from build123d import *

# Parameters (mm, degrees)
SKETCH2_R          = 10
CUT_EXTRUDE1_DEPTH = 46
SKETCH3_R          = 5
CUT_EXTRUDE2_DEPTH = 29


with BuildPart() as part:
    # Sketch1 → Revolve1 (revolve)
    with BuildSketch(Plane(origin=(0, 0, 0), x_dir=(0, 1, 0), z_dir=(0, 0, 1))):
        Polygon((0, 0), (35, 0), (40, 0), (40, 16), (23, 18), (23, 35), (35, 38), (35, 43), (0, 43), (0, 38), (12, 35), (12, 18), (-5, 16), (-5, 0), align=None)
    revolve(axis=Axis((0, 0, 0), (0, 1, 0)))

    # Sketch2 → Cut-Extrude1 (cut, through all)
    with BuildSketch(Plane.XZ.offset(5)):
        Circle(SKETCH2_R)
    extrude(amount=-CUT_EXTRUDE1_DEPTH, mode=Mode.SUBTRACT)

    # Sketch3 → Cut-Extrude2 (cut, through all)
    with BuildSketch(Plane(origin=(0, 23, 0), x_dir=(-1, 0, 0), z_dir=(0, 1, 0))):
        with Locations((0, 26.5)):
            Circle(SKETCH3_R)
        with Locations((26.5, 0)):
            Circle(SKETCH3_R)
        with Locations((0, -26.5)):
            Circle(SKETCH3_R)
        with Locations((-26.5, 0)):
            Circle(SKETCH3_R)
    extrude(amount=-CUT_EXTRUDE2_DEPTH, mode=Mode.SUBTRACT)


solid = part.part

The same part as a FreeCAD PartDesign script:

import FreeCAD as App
import Part
import Sketcher

V = App.Vector


def add_polygon(sketch, points):
    """Adds a closed chain of lines whose ends are joined by coincident constraints."""
    first, n = sketch.GeometryCount, len(points)
    for a, b in zip(points, points[1:] + points[:1]):
        sketch.addGeometry(Part.LineSegment(App.Vector(*a, 0), App.Vector(*b, 0)), False)
    for i in range(n):
        sketch.addConstraint(Sketcher.Constraint("Coincident", first + i, 2, first + (i + 1) % n, 1))

doc = App.newDocument("Part")
body = doc.addObject("PartDesign::Body", "Body")

# Sketch on XY plane
sketch1 = body.newObject("Sketcher::SketchObject", "Sketch")
sketch1.AttachmentSupport = (doc.getObject("XY_Plane"), [""])
sketch1.MapMode = "FlatFace"
add_polygon(sketch1, [(0, 40), (-16, 40), (-18, 23), (-35, 23), (-38, 35), (-43, 35), (-43, 0), (-38, 0), (-35, 12), (-18, 12), (-16, -5), (0, -5)])  # lines 0-11
sketch1.addConstraint(Sketcher.Constraint("Horizontal", 0))
sketch1.addConstraint(Sketcher.Constraint("Horizontal", 2))
sketch1.addConstraint(Sketcher.Constraint("Horizontal", 4))
sketch1.addConstraint(Sketcher.Constraint("Vertical", 5))
sketch1.addConstraint(Sketcher.Constraint("Horizontal", 6))
sketch1.addConstraint(Sketcher.Constraint("Horizontal", 8))
sketch1.addConstraint(Sketcher.Constraint("Horizontal", 10))
sketch1.addConstraint(Sketcher.Constraint("Vertical", 11))
sketch1.addConstraint(Sketcher.Constraint("PointOnObject", 5, 2, -1))
sketch1.addConstraint(Sketcher.Constraint("PointOnObject", 10, 2, -2))
sketch1.addConstraint(Sketcher.Constraint("Vertical", 3, 2, 6, 2))
sketch1.addConstraint(Sketcher.Constraint("Vertical", 2, 2, 7, 2))
sketch1.addConstraint(Sketcher.Constraint("Vertical", 1, 2, 8, 2))
sketch1.addConstraint(Sketcher.Constraint("Vertical", 0, 2, 9, 2))
sketch1.addConstraint(Sketcher.Constraint("Equal", 3, 7))
sketch1.addConstraint(Sketcher.Constraint("Equal", 1, 9))
sketch1.addConstraint(Sketcher.Constraint("DistanceX", 0, 2, 0, 1, 16.0))
sketch1.addConstraint(Sketcher.Constraint("DistanceX", 2, 2, 2, 1, 17.0))
sketch1.addConstraint(Sketcher.Constraint("DistanceX", 4, 2, 4, 1, 5.0))
sketch1.addConstraint(Sketcher.Constraint("DistanceY", 5, 2, 5, 1, 35.0))
sketch1.addConstraint(Sketcher.Constraint("DistanceY", 11, 1, 11, 2, 45.0))
sketch1.addConstraint(Sketcher.Constraint("DistanceX", 1, 2, -1, 1, 18.0))
sketch1.addConstraint(Sketcher.Constraint("DistanceY", -1, 1, 1, 2, 23.0))
sketch1.addConstraint(Sketcher.Constraint("DistanceX", 3, 2, -1, 1, 38.0))
revolution = body.newObject("PartDesign::Revolution", "Revolution")
revolution.Profile = sketch1
revolution.ReferenceAxis = (sketch1, ["V_Axis"])
revolution.Angle = 360

# Sketch on XZ plane
sketch2 = body.newObject("Sketcher::SketchObject", "Sketch001")
sketch2.AttachmentSupport = (doc.getObject("XZ_Plane"), [""])
sketch2.MapMode = "FlatFace"
sketch2.AttachmentOffset = App.Placement(V(0, 0, 5), App.Rotation())
sketch2.addGeometry(Part.Circle(V(0, 0, 0), V(0, 0, 1), 10), False)
sketch2.addConstraint(Sketcher.Constraint("Coincident", 0, 3, -1, 1))
sketch2.addConstraint(Sketcher.Constraint("Diameter", 0, 20.0))
pocket1 = body.newObject("PartDesign::Pocket", "Pocket")
pocket1.Profile = sketch2
pocket1.Type = "ThroughAll"

# Sketch on XZ plane
sketch3 = body.newObject("Sketcher::SketchObject", "Sketch002")
sketch3.AttachmentSupport = (doc.getObject("XZ_Plane"), [""])
sketch3.MapMode = "FlatFace"
sketch3.AttachmentOffset = App.Placement(V(0, 0, -23), App.Rotation())
sketch3.addGeometry(Part.Circle(V(0, 26.5, 0), V(0, 0, 1), 5), False)
sketch3.addGeometry(Part.Circle(V(-26.5, 0, 0), V(0, 0, 1), 5), False)
sketch3.addGeometry(Part.Circle(V(0, -26.5, 0), V(0, 0, 1), 5), False)
sketch3.addGeometry(Part.Circle(V(26.5, 0, 0), V(0, 0, 1), 5), False)
sketch3.addConstraint(Sketcher.Constraint("Equal", 0, 1))
sketch3.addConstraint(Sketcher.Constraint("Equal", 1, 2))
sketch3.addConstraint(Sketcher.Constraint("Equal", 2, 3))
sketch3.addConstraint(Sketcher.Constraint("Symmetric", 0, 3, 2, 3, -1, 1))
sketch3.addConstraint(Sketcher.Constraint("Symmetric", 1, 3, 3, 3, -1, 1))
sketch3.addConstraint(Sketcher.Constraint("PointOnObject", 0, 3, -2))
sketch3.addConstraint(Sketcher.Constraint("PointOnObject", 1, 3, -1))
sketch3.addConstraint(Sketcher.Constraint("Diameter", 0, 10.0))
sketch3.addConstraint(Sketcher.Constraint("DistanceY", 2, 3, 0, 3, 53.0))
sketch3.addConstraint(Sketcher.Constraint("DistanceX", 1, 3, 3, 3, 53.0))
pocket2 = body.newObject("PartDesign::Pocket", "Pocket001")
pocket2.Profile = sketch3
pocket2.Type = "ThroughAll"
pocket2.Reversed = True

doc.recompute()
